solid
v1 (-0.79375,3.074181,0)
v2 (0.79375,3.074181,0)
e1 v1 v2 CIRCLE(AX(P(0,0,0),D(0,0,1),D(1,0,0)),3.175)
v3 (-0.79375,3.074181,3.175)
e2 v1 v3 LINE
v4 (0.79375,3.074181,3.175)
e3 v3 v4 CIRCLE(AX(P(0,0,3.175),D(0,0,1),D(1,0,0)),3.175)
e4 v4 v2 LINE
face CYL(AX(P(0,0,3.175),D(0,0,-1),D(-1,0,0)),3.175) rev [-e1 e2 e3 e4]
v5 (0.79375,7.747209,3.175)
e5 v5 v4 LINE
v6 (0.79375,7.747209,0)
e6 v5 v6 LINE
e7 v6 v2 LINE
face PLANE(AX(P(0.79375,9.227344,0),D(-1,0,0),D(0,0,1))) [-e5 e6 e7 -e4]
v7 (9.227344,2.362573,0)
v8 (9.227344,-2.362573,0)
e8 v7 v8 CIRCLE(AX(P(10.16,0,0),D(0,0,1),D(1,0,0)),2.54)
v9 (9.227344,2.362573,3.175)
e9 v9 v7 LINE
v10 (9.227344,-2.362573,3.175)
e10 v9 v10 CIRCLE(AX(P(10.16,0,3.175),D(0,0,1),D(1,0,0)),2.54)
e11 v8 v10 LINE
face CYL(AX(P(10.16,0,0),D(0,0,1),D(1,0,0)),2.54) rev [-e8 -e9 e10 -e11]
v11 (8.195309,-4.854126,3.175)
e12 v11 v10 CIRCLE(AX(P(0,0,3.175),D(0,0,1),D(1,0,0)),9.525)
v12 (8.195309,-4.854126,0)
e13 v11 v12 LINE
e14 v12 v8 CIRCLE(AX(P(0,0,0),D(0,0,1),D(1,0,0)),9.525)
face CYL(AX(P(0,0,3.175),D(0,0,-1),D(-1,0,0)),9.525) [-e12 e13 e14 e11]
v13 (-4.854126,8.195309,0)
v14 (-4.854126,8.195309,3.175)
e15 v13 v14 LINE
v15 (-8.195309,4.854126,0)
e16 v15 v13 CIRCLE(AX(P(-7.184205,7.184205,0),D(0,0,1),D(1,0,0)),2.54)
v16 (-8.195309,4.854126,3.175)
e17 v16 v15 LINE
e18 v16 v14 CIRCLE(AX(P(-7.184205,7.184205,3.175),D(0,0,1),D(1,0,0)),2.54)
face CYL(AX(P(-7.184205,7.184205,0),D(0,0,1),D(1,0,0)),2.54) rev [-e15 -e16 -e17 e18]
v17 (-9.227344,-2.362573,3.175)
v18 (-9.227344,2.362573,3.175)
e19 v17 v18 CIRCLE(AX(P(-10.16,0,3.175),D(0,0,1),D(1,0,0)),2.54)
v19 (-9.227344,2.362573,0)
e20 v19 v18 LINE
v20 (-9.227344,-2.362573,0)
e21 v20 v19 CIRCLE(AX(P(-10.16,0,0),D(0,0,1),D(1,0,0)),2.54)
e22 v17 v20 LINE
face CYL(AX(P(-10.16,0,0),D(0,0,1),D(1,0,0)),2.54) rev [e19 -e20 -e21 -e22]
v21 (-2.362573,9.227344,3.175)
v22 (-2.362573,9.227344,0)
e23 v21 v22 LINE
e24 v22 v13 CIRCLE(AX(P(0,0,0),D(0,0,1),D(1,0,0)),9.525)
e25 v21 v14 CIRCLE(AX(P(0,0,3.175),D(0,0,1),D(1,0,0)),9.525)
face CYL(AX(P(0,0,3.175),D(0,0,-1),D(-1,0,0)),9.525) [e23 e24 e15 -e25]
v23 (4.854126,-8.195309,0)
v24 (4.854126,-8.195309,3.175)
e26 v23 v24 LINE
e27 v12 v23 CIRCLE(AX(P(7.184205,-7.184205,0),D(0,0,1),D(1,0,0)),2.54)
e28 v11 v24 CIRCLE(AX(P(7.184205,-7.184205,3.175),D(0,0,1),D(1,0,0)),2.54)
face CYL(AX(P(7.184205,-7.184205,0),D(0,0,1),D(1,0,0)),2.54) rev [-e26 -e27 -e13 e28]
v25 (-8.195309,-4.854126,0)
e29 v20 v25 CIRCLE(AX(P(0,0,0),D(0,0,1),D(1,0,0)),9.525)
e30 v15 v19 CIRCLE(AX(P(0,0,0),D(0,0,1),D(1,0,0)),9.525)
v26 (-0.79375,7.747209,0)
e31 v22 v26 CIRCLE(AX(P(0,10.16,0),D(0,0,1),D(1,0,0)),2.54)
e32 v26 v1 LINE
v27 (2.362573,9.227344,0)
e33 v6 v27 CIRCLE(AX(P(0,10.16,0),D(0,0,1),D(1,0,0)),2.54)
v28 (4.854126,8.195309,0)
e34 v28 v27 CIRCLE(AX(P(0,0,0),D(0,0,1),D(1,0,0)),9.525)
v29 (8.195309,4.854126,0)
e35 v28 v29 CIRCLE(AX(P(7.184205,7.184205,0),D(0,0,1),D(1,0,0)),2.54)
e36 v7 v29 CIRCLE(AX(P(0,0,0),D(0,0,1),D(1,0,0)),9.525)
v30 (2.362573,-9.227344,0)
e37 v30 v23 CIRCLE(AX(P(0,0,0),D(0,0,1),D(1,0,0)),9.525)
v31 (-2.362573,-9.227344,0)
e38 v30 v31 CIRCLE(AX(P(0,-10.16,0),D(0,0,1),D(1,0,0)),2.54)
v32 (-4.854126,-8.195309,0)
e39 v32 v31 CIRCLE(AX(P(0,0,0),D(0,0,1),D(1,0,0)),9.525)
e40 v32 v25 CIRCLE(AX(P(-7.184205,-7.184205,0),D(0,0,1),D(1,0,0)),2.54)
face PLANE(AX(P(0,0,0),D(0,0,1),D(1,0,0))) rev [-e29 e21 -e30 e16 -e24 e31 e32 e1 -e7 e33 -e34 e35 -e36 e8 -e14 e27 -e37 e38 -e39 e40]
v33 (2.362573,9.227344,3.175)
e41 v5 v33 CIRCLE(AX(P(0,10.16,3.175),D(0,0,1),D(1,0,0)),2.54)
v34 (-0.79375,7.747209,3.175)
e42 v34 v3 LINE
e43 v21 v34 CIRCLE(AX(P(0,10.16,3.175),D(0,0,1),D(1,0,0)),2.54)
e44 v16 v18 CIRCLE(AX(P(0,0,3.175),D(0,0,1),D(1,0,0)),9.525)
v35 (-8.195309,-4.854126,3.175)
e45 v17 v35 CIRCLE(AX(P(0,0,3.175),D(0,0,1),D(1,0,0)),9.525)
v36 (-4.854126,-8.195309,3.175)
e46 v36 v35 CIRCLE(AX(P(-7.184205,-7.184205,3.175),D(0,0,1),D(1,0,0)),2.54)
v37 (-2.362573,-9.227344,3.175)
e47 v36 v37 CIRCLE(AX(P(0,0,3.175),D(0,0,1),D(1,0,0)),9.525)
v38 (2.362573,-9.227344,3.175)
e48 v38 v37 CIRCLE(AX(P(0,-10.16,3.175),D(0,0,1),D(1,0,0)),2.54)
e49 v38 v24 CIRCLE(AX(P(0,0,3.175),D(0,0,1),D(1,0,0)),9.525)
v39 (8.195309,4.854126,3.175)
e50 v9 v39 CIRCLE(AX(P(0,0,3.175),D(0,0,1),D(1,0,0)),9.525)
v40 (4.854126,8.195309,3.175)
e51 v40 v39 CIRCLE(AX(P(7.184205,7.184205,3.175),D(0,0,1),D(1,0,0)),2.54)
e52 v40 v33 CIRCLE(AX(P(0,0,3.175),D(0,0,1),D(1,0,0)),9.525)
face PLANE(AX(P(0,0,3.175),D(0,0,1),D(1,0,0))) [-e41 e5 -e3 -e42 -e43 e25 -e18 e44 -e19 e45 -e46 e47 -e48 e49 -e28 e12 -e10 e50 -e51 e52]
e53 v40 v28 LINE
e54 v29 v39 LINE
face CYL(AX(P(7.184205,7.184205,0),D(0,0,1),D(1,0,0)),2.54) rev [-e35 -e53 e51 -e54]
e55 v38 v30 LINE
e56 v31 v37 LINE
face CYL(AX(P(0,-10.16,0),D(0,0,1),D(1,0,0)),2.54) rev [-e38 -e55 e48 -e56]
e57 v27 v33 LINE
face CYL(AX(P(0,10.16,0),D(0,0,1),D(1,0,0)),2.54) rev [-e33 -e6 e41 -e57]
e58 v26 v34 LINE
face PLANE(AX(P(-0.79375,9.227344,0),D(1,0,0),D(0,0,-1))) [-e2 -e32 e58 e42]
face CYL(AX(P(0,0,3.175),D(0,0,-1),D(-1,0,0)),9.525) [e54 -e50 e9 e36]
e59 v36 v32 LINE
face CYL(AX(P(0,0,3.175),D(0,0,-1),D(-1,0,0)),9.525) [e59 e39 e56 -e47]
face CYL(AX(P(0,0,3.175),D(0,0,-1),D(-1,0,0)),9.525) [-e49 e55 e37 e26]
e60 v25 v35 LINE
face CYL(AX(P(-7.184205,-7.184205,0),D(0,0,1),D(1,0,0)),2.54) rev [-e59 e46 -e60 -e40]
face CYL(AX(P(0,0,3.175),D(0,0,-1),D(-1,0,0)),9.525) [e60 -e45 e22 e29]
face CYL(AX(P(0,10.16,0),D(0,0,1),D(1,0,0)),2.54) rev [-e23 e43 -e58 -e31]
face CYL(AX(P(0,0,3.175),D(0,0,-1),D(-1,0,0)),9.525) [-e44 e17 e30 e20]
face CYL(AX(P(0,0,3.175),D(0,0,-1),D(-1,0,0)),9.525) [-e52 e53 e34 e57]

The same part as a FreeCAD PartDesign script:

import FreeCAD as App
import Part
import Sketcher
from FreeCAD import Vector
Q = App.Units.Quantity


def add_polygon(sketch, points):
    """Adds a closed chain of lines whose ends are joined by coincident constraints."""
    first, n = sketch.GeometryCount, len(points)
    for a, b in zip(points, points[1:] + points[:1]):
        sketch.addGeometry(Part.LineSegment(App.Vector(*a, 0), App.Vector(*b, 0)), False)
    for i in range(n):
        sketch.addConstraint(Sketcher.Constraint("Coincident", first + i, 2, first + (i + 1) % n, 1))

doc = App.newDocument("Part")
params = doc.addObject("Spreadsheet::Sheet", "Params")
for row, (alias, value) in enumerate([
    ("sketch1_diameter", "0.75 in"),
    ("sketch1_diameter2", "0.25 in"),
    ("pad1_length", "0.125 in"),
    ("sketch2_diameter", "0.2 in"),
    ("pocket1_length", "0.125 in"),
    ("sketch3_width", "0.0625 in"),
    ("sketch3_height", "0.125 in"),
], start=1):
    params.set(f"A{row}", alias)
    params.set(f"B{row}", "=" + value)
    params.setAlias(f"B{row}", alias)

body = doc.addObject("PartDesign::Body", "Body")

# Sketch on XY plane
sketch1 = doc.addObject("Sketcher::SketchObject", "Sketch")
body.addObject(sketch1)
sketch1.AttachmentSupport = (doc.XY_Plane, [""])
sketch1.MapMode = "FlatFace"
sketch1.addGeometry([
    Part.Circle(Vector(0, 0, 0), Vector(0, 0, 1), 9.5),
    Part.Circle(Vector(0, 0, 0), Vector(0, 0, 1), 3.2),
], False)
sketch1.addConstraint([
    Sketcher.Constraint("Coincident", 0, 3, -1, 1),
    Sketcher.Constraint("Coincident", 1, 3, -1, 1),
    Sketcher.Constraint("Diameter", 0, Q("0.75 in")),
    Sketcher.Constraint("Diameter", 1, Q("0.25 in")),
])
sketch1.setExpression("Constraints[2]", "Params.sketch1_diameter")
sketch1.setExpression("Constraints[3]", "Params.sketch1_diameter2")
pad1 = doc.addObject("PartDesign::Pad", "Pad")
body.addObject(pad1)
pad1.Profile = sketch1
pad1.setExpression("Length", "Params.pad1_length")

# Sketch on XY plane
sketch2 = doc.addObject("Sketcher::SketchObject", "Sketch001")
body.addObject(sketch2)
sketch2.AttachmentSupport = (doc.XY_Plane, [""])
sketch2.MapMode = "FlatFace"
sketch2.AttachmentOffset = App.Placement(Vector(0, 0, 0.125 * 25.4), App.Rotation())
sketch2.addGeometry([
    Part.Circle(Vector(-10.2, 0, 0), Vector(0, 0, 1), 2.5),  # 0
    Part.Circle(Vector(-7.2, 7.2, 0), Vector(0, 0, 1), 2.5),  # 1
    Part.Circle(Vector(0, 10.2, 0), Vector(0, 0, 1), 2.5),  # 2
    Part.Circle(Vector(7.2, 7.2, 0), Vector(0, 0, 1), 2.5),  # 3
    Part.Circle(Vector(10.2, 0, 0), Vector(0, 0, 1), 2.5),  # 4
    Part.Circle(Vector(7.2, -7.2, 0), Vector(0, 0, 1), 2.5),  # 5
    Part.Circle(Vector(0, -10.2, 0), Vector(0, 0, 1), 2.5),  # 6
    Part.Circle(Vector(-7.2, -7.2, 0), Vector(0, 0, 1), 2.5),  # 7
], False)
sketch2.addConstraint([
    Sketcher.Constraint("Equal", 0, 1),
    Sketcher.Constraint("Equal", 1, 2),
    Sketcher.Constraint("Equal", 2, 3),
    Sketcher.Constraint("Equal", 3, 4),
    Sketcher.Constraint("Equal", 4, 5),
    Sketcher.Constraint("Equal", 5, 6),
    Sketcher.Constraint("Equal", 6, 7),
    Sketcher.Constraint("Symmetric", 0, 3, 4, 3, -1, 1),
    Sketcher.Constraint("Symmetric", 1, 3, 5, 3, -1, 1),
    Sketcher.Constraint("Symmetric", 2, 3, 6, 3, -1, 1),
    Sketcher.Constraint("Symmetric", 3, 3, 7, 3, -1, 1),
    Sketcher.Constraint("Symmetric", 1, 3, 3, 3, -2),
    Sketcher.Constraint("PointOnObject", 0, 3, -1),
    Sketcher.Constraint("PointOnObject", 2, 3, -2),
    Sketcher.Constraint("Diameter", 0, Q("0.2 in")),
    Sketcher.Constraint("DistanceX", 0, 3, -1, 1, Q("0.4 in")),
    Sketcher.Constraint("DistanceY", -1, 1, 2, 3, Q("0.4 in")),
    Sketcher.Constraint("DistanceX", 1, 3, 3, 3, Q("14.36841 mm")),
    Sketcher.Constraint("DistanceY", 5, 3, 3, 3, Q("14.36841 mm")),
])
sketch2.setExpression("Constraints[14]", "Params.sketch2_diameter")
pocket1 = doc.addObject("PartDesign::Pocket", "Pocket")
body.addObject(pocket1)
pocket1.Profile = sketch2
pocket1.setExpression("Length", "Params.pocket1_length")

# Sketch on XZ plane
sketch3 = doc.addObject("Sketcher::SketchObject", "Sketch002")
body.addObject(sketch3)
sketch3.AttachmentSupport = (doc.XZ_Plane, [""])
sketch3.MapMode = "FlatFace"
add_polygon(sketch3, [(-0.8, 0), (-0.8, 3.2), (0.8, 3.2), (0.8, 0)])  # lines 0-3
sketch3.addConstraint([
    Sketcher.Constraint("Vertical", 0),
    Sketcher.Constraint("Horizontal", 1),
    Sketcher.Constraint("Vertical", 2),
    Sketcher.Constraint("Horizontal", 3),
    Sketcher.Constraint("Symmetric", 2, 2, 3, 2, -1, 1),
    Sketcher.Constraint("DistanceX", 1, 1, 1, 2, Q("0.0625 in")),
    Sketcher.Constraint("DistanceY", 0, 1, 0, 2, Q("0.125 in")),
])
sketch3.setExpression("Constraints[9]", "Params.sketch3_width")
sketch3.setExpression("Constraints[10]", "Params.sketch3_height")
pocket2 = doc.addObject("PartDesign::Pocket", "Pocket001")
body.addObject(pocket2)
pocket2.Profile = sketch3
pocket2.Type = "ThroughAll"

doc.recompute()
